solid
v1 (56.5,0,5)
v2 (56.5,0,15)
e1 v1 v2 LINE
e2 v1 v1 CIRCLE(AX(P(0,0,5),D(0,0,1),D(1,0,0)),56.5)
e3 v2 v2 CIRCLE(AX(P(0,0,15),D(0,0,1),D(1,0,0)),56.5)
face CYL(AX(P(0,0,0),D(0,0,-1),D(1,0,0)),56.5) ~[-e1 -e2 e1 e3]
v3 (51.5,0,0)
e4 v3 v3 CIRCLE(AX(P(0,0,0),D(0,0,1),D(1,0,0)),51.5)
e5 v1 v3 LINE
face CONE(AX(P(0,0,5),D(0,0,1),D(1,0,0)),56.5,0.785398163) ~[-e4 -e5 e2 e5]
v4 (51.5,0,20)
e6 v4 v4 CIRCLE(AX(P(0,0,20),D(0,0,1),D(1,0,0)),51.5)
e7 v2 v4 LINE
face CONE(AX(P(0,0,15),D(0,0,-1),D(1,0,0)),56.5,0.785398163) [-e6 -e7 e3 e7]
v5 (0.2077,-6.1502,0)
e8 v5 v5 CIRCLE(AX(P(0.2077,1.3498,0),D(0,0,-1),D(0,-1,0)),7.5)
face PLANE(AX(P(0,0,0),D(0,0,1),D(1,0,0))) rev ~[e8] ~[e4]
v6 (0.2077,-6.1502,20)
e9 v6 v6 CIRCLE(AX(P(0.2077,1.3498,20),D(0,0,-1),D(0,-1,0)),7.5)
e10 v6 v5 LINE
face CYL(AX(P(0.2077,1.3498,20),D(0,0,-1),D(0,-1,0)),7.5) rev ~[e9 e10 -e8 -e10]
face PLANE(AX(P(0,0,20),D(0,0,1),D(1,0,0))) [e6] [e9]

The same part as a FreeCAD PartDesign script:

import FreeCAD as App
import Part
import Sketcher


def edges_at(feature, points):
    """Names of the edges that pass closest to the given points."""
    edges = feature.Shape.Edges
    near = lambda p: min(range(len(edges)), key=lambda i: edges[i].distToShape(Part.Vertex(*p))[0])
    return sorted({f"Edge{near(p) + 1}" for p in points})

doc = App.newDocument("Part")
body = doc.addObject("PartDesign::Body", "Body")

# Sketch on XY plane
sketch1 = body.newObject("Sketcher::SketchObject", "Sketch")
sketch1.AttachmentSupport = (doc.getObject("XY_Plane"), [""])
sketch1.MapMode = "FlatFace"
sketch1.addGeometry(Part.Circle(App.Vector(0, 0, 0), App.Vector(0, 0, 1), 56.5), False)
sketch1.addConstraint([
    Sketcher.Constraint("Coincident", 0, 3, -1, 1),
    Sketcher.Constraint("Diameter", 0, 113.0),
])
pad1 = body.newObject("PartDesign::Pad", "Pad")
pad1.Profile = sketch1
pad1.Length = 20
doc.recompute()

chamfer = body.newObject("PartDesign::Chamfer", "Chamfer")
chamfer.Base = (pad1, edges_at(pad1, [(-56.5, 0, 20), (-56.5, 0, 0)]))
chamfer.Size = 5

# Sketch on XY plane
sketch2 = body.newObject("Sketcher::SketchObject", "Sketch001")
sketch2.AttachmentSupport = (doc.getObject("XY_Plane"), [""])
sketch2.MapMode = "FlatFace"
sketch2.AttachmentOffset = App.Placement(App.Vector(0, 0, 20), App.Rotation())
sketch2.addGeometry(Part.Circle(App.Vector(0.2077, 1.3498, 0), App.Vector(0, 0, 1), 7.5), False)
sketch2.addConstraint([
    Sketcher.Constraint("Diameter", 0, 15.0),
    Sketcher.Constraint("DistanceX", -1, 1, 0, 3, 0.2077),
    Sketcher.Constraint("DistanceY", -1, 1, 0, 3, 1.3498),
])
doc.recompute()
hole = body.newObject("PartDesign::Hole", "Hole")
hole.Profile = sketch2
hole.ThreadType = "None"
hole.Diameter = 15
hole.DepthType = "Dimension"
hole.Depth = 20
hole.DrillPoint = "Angled"
hole.DrillPointAngle = 118

doc.recompute()
